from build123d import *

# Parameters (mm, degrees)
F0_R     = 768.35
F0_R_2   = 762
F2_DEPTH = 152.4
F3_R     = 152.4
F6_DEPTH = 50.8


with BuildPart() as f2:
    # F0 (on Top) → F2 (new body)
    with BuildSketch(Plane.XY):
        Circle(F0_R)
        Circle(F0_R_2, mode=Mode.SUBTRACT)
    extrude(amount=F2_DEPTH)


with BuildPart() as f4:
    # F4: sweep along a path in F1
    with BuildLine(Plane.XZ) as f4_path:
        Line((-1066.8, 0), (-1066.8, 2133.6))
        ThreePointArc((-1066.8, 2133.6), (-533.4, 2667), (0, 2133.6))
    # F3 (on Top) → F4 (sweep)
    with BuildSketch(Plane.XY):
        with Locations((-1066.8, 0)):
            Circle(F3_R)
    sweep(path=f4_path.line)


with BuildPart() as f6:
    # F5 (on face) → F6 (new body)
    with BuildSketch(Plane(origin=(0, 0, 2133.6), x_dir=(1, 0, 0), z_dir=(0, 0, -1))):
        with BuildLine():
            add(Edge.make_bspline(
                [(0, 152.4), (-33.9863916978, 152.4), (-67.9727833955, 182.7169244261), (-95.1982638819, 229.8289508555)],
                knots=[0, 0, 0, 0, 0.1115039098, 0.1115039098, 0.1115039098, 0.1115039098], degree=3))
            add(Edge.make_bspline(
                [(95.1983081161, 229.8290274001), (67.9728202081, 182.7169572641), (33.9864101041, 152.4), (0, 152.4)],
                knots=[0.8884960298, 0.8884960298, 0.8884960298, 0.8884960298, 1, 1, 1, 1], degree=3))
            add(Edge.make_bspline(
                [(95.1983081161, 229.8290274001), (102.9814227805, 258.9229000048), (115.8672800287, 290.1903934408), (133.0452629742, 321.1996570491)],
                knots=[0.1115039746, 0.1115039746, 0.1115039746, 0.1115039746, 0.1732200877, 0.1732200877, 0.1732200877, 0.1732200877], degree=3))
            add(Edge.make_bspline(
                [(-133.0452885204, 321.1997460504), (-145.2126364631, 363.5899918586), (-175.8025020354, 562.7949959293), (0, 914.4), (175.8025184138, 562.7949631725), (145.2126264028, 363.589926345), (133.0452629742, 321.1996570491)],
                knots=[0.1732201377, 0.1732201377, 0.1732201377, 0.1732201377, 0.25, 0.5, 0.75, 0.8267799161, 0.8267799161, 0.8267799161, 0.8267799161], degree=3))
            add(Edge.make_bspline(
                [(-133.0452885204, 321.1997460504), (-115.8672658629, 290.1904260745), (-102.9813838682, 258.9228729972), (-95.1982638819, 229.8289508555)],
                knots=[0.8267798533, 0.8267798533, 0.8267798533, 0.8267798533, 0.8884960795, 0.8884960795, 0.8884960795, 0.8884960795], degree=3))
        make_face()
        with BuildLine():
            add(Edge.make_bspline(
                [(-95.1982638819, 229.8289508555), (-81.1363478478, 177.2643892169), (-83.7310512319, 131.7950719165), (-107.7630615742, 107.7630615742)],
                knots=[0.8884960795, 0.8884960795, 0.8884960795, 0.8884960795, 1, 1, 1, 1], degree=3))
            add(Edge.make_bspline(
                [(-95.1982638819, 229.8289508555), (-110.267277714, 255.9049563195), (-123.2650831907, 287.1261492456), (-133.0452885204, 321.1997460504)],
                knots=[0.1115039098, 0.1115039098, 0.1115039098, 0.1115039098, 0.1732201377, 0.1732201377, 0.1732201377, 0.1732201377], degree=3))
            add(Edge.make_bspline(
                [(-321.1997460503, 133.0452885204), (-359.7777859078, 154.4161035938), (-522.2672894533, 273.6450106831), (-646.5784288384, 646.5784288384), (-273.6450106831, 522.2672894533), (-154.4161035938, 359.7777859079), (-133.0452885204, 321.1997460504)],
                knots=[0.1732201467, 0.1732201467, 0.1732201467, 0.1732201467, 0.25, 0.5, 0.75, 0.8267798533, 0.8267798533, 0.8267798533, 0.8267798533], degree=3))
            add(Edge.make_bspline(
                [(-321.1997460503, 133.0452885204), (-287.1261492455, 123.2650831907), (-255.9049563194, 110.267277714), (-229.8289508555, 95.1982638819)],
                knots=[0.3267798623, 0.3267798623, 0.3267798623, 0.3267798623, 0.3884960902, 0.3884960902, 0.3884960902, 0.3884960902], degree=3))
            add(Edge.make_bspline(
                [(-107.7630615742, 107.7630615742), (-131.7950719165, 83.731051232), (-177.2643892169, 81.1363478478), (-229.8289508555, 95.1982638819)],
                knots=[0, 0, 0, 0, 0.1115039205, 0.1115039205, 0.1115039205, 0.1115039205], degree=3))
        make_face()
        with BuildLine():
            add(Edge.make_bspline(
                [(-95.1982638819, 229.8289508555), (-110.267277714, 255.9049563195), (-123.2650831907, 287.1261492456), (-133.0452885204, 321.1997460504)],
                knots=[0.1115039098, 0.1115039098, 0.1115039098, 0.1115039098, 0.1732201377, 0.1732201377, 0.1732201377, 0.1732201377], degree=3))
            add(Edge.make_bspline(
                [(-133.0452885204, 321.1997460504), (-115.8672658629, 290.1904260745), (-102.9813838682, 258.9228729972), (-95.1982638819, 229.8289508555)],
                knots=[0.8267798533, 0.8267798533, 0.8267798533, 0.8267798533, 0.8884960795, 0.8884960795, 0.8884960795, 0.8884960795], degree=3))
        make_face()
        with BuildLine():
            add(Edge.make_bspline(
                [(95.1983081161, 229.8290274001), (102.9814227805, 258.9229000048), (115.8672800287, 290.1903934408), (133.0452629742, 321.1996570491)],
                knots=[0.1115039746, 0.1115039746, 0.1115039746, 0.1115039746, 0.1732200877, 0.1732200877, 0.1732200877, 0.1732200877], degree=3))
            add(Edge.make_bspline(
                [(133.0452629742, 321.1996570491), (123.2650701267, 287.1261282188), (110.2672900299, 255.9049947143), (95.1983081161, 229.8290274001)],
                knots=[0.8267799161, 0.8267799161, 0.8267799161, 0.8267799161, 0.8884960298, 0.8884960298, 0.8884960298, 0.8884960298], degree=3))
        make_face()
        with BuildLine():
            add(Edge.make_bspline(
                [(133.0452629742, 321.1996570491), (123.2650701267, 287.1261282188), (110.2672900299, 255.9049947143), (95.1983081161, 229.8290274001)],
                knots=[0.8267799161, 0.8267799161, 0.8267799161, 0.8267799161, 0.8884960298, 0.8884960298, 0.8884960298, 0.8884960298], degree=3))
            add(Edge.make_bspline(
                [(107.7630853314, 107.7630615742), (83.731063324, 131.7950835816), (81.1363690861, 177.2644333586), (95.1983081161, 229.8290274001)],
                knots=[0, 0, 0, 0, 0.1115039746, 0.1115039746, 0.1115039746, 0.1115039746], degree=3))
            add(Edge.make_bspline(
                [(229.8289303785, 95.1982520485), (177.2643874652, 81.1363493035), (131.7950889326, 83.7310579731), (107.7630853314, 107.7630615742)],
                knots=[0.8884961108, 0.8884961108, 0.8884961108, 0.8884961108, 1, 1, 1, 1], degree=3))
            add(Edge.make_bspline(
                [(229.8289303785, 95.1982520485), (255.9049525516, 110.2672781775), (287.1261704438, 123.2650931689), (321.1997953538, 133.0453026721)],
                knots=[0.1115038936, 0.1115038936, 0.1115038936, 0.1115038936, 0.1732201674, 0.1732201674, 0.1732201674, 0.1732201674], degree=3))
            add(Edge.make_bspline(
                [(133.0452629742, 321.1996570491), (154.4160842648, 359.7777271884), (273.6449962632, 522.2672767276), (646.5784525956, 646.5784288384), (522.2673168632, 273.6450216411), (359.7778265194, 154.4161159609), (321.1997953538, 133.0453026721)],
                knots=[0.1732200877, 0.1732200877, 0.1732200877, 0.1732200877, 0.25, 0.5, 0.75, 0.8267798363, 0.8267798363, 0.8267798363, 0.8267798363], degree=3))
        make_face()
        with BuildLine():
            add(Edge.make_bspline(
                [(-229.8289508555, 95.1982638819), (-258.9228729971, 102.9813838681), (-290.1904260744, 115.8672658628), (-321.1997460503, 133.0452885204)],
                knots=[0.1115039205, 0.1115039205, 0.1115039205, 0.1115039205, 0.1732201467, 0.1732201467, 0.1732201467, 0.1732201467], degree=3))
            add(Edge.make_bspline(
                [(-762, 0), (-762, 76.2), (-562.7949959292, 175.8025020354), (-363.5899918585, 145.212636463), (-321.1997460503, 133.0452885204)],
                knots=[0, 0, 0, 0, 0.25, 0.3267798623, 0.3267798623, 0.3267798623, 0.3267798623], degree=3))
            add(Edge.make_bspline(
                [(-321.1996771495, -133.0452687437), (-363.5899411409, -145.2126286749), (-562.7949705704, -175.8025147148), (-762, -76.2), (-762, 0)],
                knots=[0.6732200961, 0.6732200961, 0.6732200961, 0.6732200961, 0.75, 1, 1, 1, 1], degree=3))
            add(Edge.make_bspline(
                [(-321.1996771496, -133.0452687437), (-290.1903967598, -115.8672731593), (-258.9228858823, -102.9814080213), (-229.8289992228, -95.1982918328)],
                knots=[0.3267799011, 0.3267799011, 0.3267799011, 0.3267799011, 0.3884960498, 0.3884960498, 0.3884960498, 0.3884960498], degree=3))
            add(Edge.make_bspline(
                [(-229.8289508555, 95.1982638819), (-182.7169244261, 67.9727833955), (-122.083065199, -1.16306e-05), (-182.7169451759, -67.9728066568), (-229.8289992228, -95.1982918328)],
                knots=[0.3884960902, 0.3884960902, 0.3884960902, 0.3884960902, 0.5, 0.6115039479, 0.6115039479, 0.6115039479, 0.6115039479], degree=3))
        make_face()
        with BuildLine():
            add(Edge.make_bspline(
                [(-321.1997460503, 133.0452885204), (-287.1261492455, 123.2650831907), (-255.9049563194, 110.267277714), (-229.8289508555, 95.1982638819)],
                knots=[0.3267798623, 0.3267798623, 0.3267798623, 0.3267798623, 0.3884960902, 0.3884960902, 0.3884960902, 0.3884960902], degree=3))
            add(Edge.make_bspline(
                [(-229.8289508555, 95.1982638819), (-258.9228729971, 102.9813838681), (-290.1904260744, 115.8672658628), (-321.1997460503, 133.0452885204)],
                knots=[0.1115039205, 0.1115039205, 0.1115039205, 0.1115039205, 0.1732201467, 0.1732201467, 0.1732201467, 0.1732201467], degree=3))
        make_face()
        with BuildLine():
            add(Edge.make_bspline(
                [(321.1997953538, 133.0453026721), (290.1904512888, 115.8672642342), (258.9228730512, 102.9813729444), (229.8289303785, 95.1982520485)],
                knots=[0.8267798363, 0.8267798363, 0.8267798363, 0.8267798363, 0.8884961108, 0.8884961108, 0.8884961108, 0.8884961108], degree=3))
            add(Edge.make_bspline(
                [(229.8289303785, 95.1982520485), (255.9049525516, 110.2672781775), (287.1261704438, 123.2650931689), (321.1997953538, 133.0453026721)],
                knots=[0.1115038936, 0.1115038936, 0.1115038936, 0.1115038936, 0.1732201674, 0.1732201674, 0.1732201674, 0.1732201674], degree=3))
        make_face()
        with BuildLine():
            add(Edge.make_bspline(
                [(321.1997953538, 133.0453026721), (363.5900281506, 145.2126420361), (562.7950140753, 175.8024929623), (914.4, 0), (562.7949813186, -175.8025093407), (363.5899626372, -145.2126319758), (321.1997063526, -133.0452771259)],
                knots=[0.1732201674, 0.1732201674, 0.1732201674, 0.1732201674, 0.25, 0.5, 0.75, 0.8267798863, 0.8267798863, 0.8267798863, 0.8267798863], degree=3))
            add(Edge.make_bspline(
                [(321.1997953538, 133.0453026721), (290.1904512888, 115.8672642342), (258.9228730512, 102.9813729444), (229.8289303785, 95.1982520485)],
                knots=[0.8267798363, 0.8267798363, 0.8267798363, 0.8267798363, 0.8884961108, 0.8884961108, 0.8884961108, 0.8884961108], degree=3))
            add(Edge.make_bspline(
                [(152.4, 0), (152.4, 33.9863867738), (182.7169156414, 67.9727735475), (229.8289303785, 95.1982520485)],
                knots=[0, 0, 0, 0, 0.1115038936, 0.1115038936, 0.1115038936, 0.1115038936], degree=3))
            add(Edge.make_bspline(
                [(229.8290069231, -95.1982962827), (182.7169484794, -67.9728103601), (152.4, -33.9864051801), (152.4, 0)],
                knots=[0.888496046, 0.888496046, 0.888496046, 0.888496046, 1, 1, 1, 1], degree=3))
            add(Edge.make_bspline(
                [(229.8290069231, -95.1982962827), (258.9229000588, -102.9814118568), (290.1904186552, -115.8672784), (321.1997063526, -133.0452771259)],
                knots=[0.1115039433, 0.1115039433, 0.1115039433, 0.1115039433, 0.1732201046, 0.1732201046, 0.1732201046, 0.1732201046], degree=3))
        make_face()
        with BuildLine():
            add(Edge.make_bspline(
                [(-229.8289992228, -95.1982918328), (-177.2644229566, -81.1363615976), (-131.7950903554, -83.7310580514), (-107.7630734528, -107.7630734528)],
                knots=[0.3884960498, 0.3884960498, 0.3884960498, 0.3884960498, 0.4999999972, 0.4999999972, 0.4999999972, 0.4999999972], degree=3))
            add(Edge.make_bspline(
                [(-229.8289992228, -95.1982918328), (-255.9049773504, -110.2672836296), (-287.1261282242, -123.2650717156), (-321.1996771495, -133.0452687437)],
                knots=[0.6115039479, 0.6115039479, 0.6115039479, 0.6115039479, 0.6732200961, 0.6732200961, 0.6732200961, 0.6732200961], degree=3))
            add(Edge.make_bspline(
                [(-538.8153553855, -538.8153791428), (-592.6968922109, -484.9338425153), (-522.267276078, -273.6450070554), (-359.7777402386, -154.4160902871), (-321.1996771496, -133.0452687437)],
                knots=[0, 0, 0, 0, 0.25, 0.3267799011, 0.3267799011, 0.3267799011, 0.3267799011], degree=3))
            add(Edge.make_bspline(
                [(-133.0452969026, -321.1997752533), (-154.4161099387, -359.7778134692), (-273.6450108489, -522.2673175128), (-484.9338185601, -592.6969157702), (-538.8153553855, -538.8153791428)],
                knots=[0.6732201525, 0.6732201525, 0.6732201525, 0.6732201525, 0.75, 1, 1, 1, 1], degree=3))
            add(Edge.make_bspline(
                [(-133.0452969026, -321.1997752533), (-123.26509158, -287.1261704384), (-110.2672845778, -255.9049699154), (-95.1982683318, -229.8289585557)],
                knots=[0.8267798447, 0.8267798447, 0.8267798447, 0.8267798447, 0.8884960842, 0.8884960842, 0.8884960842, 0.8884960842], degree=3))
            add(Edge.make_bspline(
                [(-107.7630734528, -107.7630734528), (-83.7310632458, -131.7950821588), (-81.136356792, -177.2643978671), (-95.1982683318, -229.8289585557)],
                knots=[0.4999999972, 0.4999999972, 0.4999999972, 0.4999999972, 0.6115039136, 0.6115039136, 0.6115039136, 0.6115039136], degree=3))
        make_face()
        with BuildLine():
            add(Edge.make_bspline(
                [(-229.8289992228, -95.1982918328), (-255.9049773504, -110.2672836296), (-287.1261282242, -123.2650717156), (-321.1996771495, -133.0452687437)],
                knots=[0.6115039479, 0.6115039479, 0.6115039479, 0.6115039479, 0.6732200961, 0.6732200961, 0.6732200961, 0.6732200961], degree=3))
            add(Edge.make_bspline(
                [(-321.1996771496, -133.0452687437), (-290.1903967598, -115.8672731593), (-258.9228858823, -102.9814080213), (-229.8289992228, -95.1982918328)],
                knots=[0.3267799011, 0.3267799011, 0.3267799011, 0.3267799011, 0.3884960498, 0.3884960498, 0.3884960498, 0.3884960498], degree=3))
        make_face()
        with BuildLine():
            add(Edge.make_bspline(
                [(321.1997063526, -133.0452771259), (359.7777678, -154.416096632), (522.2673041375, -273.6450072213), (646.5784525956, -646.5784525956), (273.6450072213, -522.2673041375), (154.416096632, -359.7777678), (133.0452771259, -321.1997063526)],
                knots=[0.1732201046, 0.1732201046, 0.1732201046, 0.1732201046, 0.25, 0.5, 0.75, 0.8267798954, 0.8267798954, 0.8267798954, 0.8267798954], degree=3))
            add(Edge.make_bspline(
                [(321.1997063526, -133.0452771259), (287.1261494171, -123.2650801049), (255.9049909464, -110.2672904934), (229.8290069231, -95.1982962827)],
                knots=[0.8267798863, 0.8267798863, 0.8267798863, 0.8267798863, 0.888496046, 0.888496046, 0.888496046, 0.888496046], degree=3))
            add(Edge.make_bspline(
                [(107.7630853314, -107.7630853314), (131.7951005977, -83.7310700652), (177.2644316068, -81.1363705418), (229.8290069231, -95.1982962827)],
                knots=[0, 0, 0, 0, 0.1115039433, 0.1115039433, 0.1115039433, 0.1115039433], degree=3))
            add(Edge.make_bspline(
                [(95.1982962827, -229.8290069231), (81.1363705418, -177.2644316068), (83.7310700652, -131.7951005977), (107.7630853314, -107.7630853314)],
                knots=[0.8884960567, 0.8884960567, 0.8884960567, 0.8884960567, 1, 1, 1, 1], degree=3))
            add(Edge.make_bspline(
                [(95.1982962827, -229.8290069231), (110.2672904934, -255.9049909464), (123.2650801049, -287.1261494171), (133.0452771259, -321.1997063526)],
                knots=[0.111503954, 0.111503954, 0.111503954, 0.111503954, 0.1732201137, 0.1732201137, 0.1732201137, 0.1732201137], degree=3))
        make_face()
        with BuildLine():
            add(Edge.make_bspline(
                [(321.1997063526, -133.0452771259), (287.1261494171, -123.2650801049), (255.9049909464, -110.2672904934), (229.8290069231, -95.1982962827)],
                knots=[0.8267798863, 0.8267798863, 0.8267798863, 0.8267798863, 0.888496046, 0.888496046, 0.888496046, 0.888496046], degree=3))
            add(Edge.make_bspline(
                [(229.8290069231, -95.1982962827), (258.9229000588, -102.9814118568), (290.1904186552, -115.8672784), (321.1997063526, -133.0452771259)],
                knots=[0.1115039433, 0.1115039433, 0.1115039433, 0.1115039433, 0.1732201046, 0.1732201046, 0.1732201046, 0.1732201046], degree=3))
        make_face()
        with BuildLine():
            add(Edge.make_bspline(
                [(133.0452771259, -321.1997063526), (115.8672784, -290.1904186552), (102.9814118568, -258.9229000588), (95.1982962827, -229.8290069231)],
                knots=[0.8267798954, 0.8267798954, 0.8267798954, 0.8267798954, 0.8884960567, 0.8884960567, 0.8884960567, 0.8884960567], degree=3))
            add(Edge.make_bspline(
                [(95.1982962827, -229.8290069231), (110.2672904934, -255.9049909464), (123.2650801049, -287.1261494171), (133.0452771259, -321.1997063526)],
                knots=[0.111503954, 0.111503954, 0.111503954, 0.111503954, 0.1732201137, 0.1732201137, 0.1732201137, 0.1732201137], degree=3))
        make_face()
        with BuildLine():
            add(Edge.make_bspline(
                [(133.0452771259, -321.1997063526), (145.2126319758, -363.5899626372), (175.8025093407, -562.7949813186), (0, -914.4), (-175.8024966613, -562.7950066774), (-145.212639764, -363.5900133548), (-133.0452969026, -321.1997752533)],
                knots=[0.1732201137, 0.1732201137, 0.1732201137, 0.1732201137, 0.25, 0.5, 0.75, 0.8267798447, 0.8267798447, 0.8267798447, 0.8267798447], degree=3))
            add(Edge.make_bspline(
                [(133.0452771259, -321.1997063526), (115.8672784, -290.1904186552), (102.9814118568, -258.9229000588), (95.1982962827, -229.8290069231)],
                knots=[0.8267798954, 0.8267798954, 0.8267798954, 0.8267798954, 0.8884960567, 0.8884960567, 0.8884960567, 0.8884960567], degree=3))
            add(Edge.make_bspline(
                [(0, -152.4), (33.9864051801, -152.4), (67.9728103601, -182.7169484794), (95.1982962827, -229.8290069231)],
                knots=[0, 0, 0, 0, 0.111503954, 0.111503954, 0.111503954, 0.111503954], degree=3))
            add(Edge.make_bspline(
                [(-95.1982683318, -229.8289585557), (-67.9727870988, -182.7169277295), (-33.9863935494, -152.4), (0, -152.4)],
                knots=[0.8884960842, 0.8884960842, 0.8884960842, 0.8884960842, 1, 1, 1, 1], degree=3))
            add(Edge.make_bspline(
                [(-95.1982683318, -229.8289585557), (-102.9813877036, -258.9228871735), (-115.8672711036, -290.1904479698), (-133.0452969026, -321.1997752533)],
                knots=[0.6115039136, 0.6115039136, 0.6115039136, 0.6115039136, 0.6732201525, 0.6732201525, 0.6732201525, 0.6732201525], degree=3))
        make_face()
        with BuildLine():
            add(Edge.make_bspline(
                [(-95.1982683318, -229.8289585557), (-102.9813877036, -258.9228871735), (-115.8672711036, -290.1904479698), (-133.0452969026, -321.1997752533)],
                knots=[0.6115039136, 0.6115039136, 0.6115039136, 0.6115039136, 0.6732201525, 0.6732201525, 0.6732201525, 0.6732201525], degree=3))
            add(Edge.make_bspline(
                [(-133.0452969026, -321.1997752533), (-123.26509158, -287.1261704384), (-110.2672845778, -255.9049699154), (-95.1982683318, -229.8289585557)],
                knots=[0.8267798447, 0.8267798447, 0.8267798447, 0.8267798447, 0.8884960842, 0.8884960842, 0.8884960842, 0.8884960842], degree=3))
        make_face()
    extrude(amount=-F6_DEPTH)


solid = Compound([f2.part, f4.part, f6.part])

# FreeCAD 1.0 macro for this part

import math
import FreeCAD as App
import Part
import Sketcher
from FreeCAD import Vector
Q = App.Units.Quantity

doc = App.newDocument("Part")
body = doc.addObject("PartDesign::Body", "Body")

sketch1 = doc.addObject("Sketcher::SketchObject", "Sketch")
body.addObject(sketch1)
sketch1.AttachmentSupport = (doc.XY_Plane, [""])
sketch1.MapMode = "FlatFace"
sketch1.addGeometry([
    Part.Circle(Vector(0, 0, 0), Vector(0, 0, 1), 768),
    Part.Circle(Vector(0, 0, 0), Vector(0, 0, 1), 762),
], False)
sketch1.addConstraint([
    Sketcher.Constraint("Coincident", 0, 3, -1, 1),
    Sketcher.Constraint("Coincident", 1, 3, -1, 1),
    Sketcher.Constraint("Diameter", 1, Q("60 in")),
    Sketcher.Constraint("Diameter", 0, Q("60.5 in")),
])
pad1 = doc.addObject("PartDesign::Pad", "Pad")
body.addObject(pad1)
pad1.Profile = sketch1
pad1.Length = Q("6 in")
body2 = doc.addObject("PartDesign::Body", "Body001")

sketch2 = doc.addObject("Sketcher::SketchObject", "Sketch001")
body2.addObject(sketch2)
sketch2.AttachmentSupport = (doc.getObject("XY_Plane001"), [""])
sketch2.MapMode = "FlatFace"
sketch2.addGeometry(Part.Circle(Vector(-1067, 0, 0), Vector(0, 0, 1), 152), False)
sketch2.addConstraint([
    Sketcher.Constraint("PointOnObject", 0, 3, -1),
    Sketcher.Constraint("Diameter", 0, Q("12 in")),
    Sketcher.Constraint("DistanceX", 0, 3, -1, 1, Q("42 in")),
])

sketch3 = doc.addObject("Sketcher::SketchObject", "Sketch002")
body2.addObject(sketch3)
sketch3.AttachmentSupport = (doc.getObject("XZ_Plane001"), [""])
sketch3.MapMode = "FlatFace"
sketch3.addGeometry([
    Part.LineSegment(Vector(-1067, 0, 0), Vector(-1067, 2134, 0)),
    Part.ArcOfCircle(Part.Circle(Vector(-533, 2134, 0), Vector(0, 0, 1), 533), math.radians(0), math.radians(180)),
], False)
sketch3.addConstraint([
    Sketcher.Constraint("Tangent", 0, 2, 1, 2),
    Sketcher.Constraint("Vertical", 0),
    Sketcher.Constraint("PointOnObject", 0, 1, -1),
    Sketcher.Constraint("PointOnObject", 1, 1, -2),
    Sketcher.Constraint("Horizontal", 0, 2, 1, 1),
    Sketcher.Constraint("Radius", 1, Q("21 in")),
    Sketcher.Constraint("DistanceY", 0, 1, 0, 2, Q("84 in")),
])
doc.recompute()

additivepipe = doc.addObject("PartDesign::AdditivePipe", "AdditivePipe")
body2.addObject(additivepipe)
additivepipe.Profile = sketch2
additivepipe.Spine = (sketch3, ["Edge1", "Edge2"])
body3 = doc.addObject("PartDesign::Body", "Body002")

sketch4 = doc.addObject("Sketcher::SketchObject", "Sketch003")
body3.addObject(sketch4)
sketch4.AttachmentSupport = (doc.getObject("XY_Plane002"), [""])
sketch4.MapMode = "FlatFace"
sketch4.AttachmentOffset = App.Placement(Vector(0, 0, 84 * 25.4), App.Rotation())
sketch4.addGeometry([
    Part.BSplineCurve([Vector(133.045277, 321.199706, 0), Vector(145.212632, 363.589963, 0), Vector(175.802509, 562.794981, 0), Vector(0, 914.4, 0), Vector(-175.802497, 562.795007, 0), Vector(-145.21264, 363.590013, 0), Vector(-133.045297, 321.199775, 0)], [4, 1, 1, 1, 4], [0.173220114, 0.25, 0.5, 0.75, 0.826779845], False, 3, [1, 1, 1, 1, 1, 1, 1], False),
    Part.BSplineCurve([Vector(321.199706, 133.045277, 0), Vector(359.777768, 154.416097, 0), Vector(522.267304, 273.645007, 0), Vector(646.578453, 646.578453, 0), Vector(273.645007, 522.267304, 0), Vector(154.416097, 359.777768, 0), Vector(133.045277, 321.199706, 0)], [4, 1, 1, 1, 4], [0.173220105, 0.25, 0.5, 0.75, 0.826779895], False, 3, [1, 1, 1, 1, 1, 1, 1], False),
    Part.BSplineCurve([Vector(321.199795, -133.045303, 0), Vector(363.590028, -145.212642, 0), Vector(562.795014, -175.802493, 0), Vector(914.4, 0, 0), Vector(562.794981, 175.802509, 0), Vector(363.589963, 145.212632, 0), Vector(321.199706, 133.045277, 0)], [4, 1, 1, 1, 4], [0.173220167, 0.25, 0.5, 0.75, 0.826779886], False, 3, [1, 1, 1, 1, 1, 1, 1], False),
    Part.BSplineCurve([Vector(321.199795, -133.045303, 0), Vector(359.777827, -154.416116, 0), Vector(522.267317, -273.645022, 0), Vector(646.578453, -646.578429, 0), Vector(273.644996, -522.267277, 0), Vector(154.416084, -359.777727, 0), Vector(133.045263, -321.199657, 0)], [4, 1, 1, 1, 4], [1.061716275, 1.138496111, 1.388496111, 1.638496111, 1.715276023], False, 3, [1, 1, 1, 1, 1, 1, 1], False),
    Part.BSplineCurve([Vector(-133.045289, -321.199746, 0), Vector(-145.212636, -363.589992, 0), Vector(-175.802502, -562.794996, 0), Vector(0, -914.4, 0), Vector(175.802518, -562.794963, 0), Vector(145.212626, -363.589926, 0), Vector(133.045263, -321.199657, 0)], [4, 1, 1, 1, 4], [0.173220138, 0.25, 0.5, 0.75, 0.826779916], False, 3, [1, 1, 1, 1, 1, 1, 1], False),
    Part.BSplineCurve([Vector(-321.199746, -133.045289, 0), Vector(-359.777786, -154.416104, 0), Vector(-522.267289, -273.645011, 0), Vector(-646.578429, -646.578429, 0), Vector(-273.645011, -522.267289, 0), Vector(-154.416104, -359.777786, 0), Vector(-133.045289, -321.199746, 0)], [4, 1, 1, 1, 4], [0.173220147, 0.25, 0.5, 0.75, 0.826779853], False, 3, [1, 1, 1, 1, 1, 1, 1], False),
    Part.BSplineCurve([Vector(-321.199677, 133.045269, 0), Vector(-363.589941, 145.212629, 0), Vector(-562.794971, 175.802515, 0), Vector(-914.4, 0, 0), Vector(-562.794996, -175.802502, 0), Vector(-363.589992, -145.212636, 0), Vector(-321.199746, -133.045289, 0)], [4, 1, 1, 1, 4], [0.673220096, 0.75, 1, 1.25, 1.326779862], False, 3, [1, 1, 1, 1, 1, 1, 1], False),
    Part.BSplineCurve([Vector(-133.045297, 321.199775, 0), Vector(-154.41611, 359.777813, 0), Vector(-273.645011, 522.267318, 0), Vector(-646.578431, 646.57845, 0), Vector(-522.267276, 273.645007, 0), Vector(-359.77774, 154.41609, 0), Vector(-321.199677, 133.045269, 0)], [4, 1, 1, 1, 4], [0.673220153, 0.75, 1, 1.25, 1.326779901], False, 3, [1, 1, 1, 1, 1, 1, 1], False),
    Part.BSplineCurve([Vector(-107.763073, 107.763073, 0), Vector(-83.731063, 131.795082, 0), Vector(-81.136357, 177.264398, 0), Vector(-95.198268, 229.828959, 0)], [4, 4], [0.499999997, 0.611503914], False, 3, [1, 1, 1, 1], False),
    Part.BSplineCurve([Vector(-229.828999, 95.198292, 0), Vector(-177.264423, 81.136362, 0), Vector(-131.79509, 83.731058, 0), Vector(-107.763073, 107.763073, 0)], [4, 4], [0.38849605, 0.499999997], False, 3, [1, 1, 1, 1], False),
    Part.BSplineCurve([Vector(-229.828951, -95.198264, 0), Vector(-182.716924, -67.972783, 0), Vector(-122.083065, 0.000012, 0), Vector(-182.716945, 67.972807, 0), Vector(-229.828999, 95.198292, 0)], [4, 1, 4], [0.38849609, 0.5, 0.611503948], False, 3, [1, 1, 1, 1, 1], False),
    Part.BSplineCurve([Vector(-107.763062, -107.763062, 0), Vector(-131.795072, -83.731051, 0), Vector(-177.264389, -81.136348, 0), Vector(-229.828951, -95.198264, 0)], [4, 4], [0, 0.111503921], False, 3, [1, 1, 1, 1], False),
    Part.BSplineCurve([Vector(-95.198264, -229.828951, 0), Vector(-81.136348, -177.264389, 0), Vector(-83.731051, -131.795072, 0), Vector(-107.763062, -107.763062, 0)], [4, 4], [0.888496079, 1], False, 3, [1, 1, 1, 1], False),
    Part.BSplineCurve([Vector(-95.198264, -229.828951, 0), Vector(-67.972783, -182.716924, 0), Vector(0.000018, -122.083059, 0), Vector(67.97282, -182.716957, 0), Vector(95.198308, -229.829027, 0)], [4, 1, 4], [0.88849603, 0.99999994, 1.11150391], False, 3, [1, 1, 1, 1, 1], False),
    Part.BSplineCurve([Vector(107.763085, -107.763062, 0), Vector(83.731063, -131.795084, 0), Vector(81.136369, -177.264433, 0), Vector(95.198308, -229.829027, 0)], [4, 4], [0, 0.111503975], False, 3, [1, 1, 1, 1], False),
    Part.BSplineCurve([Vector(107.763085, -107.763062, 0), Vector(131.795089, -83.731058, 0), Vector(177.264387, -81.136349, 0), Vector(229.82893, -95.198252, 0)], [4, 4], [0.888496111, 1], False, 3, [1, 1, 1, 1], False),
    Part.BSplineCurve([Vector(229.829007, 95.198296, 0), Vector(182.716948, 67.97281, 0), Vector(122.083068, 0.000018, 0), Vector(182.716916, -67.972774, 0), Vector(229.82893, -95.198252, 0)], [4, 1, 4], [0.888496046, 1, 1.111503894], False, 3, [1, 1, 1, 1, 1], False),
    Part.BSplineCurve([Vector(107.763085, 107.763085, 0), Vector(131.795101, 83.73107, 0), Vector(177.264432, 81.136371, 0), Vector(229.829007, 95.198296, 0)], [4, 4], [0, 0.111503943], False, 3, [1, 1, 1, 1], False),
    Part.BSplineCurve([Vector(95.198296, 229.829007, 0), Vector(81.136371, 177.264432, 0), Vector(83.73107, 131.795101, 0), Vector(107.763085, 107.763085, 0)], [4, 4], [0.888496057, 1], False, 3, [1, 1, 1, 1], False),
    Part.BSplineCurve([Vector(-95.198268, 229.828959, 0), Vector(-67.972787, 182.716928, 0), Vector(0.000012, 122.083062, 0), Vector(67.97281, 182.716948, 0), Vector(95.198296, 229.829007, 0)], [4, 1, 4], [0.888496084, 1, 1.111503954], False, 3, [1, 1, 1, 1, 1], False),
], False)
sketch4.addConstraint([
    Sketcher.Constraint("Block", 0),
    Sketcher.Constraint("Block", 1),
    Sketcher.Constraint("Block", 2),
    Sketcher.Constraint("Block", 3),
    Sketcher.Constraint("Block", 4),
    Sketcher.Constraint("Block", 5),
    Sketcher.Constraint("Block", 6),
    Sketcher.Constraint("Block", 7),
    Sketcher.Constraint("Block", 8),
    Sketcher.Constraint("Block", 9),
    Sketcher.Constraint("Block", 10),
    Sketcher.Constraint("Block", 11),
    Sketcher.Constraint("Block", 12),
    Sketcher.Constraint("Block", 13),
    Sketcher.Constraint("Block", 14),
    Sketcher.Constraint("Block", 15),
    Sketcher.Constraint("Block", 16),
    Sketcher.Constraint("Block", 17),
    Sketcher.Constraint("Block", 18),
    Sketcher.Constraint("Block", 19),
])
pad2 = doc.addObject("PartDesign::Pad", "Pad001")
body3.addObject(pad2)
pad2.Profile = sketch4
pad2.Length = Q("2 in")

doc.recompute()
